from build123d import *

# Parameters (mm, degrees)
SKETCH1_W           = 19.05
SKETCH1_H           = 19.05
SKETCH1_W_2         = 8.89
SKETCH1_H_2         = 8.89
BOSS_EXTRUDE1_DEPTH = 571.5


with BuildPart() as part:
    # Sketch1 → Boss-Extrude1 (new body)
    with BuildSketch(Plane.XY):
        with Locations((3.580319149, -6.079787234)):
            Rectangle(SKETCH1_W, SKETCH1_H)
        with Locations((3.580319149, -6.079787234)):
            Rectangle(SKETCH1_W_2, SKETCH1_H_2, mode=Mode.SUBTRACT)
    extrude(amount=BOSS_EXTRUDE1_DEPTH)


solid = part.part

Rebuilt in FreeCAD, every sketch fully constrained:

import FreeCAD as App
import Part
import Sketcher

V = App.Vector
Q = App.Units.Quantity

doc = App.newDocument("Part")
params = doc.addObject("Spreadsheet::Sheet", "Params")
for row, (alias, value) in enumerate([
    ("sketch1_width", "0.75 in"),
    ("sketch1_width2", "0.35 in"),
    ("pad1_length", "22.5 in"),
], start=1):
    params.set(f"A{row}", alias)
    params.set(f"B{row}", "=" + value)
    params.setAlias(f"B{row}", alias)

body = doc.addObject("PartDesign::Body", "Body")

sketch1 = doc.addObject("Sketcher::SketchObject", "Sketch")
body.addObject(sketch1)
sketch1.AttachmentSupport = (doc.XY_Plane, [""])
sketch1.MapMode = "FlatFace"
sketch1.addGeometry([
    Part.LineSegment(V(-6, 3, 0), V(-6, -16, 0)),
    Part.LineSegment(V(-6, -16, 0), V(13, -16, 0)),
    Part.LineSegment(V(13, -16, 0), V(13, 3, 0)),
    Part.LineSegment(V(13, 3, 0), V(-6, 3, 0)),
    Part.LineSegment(V(8, -11, 0), V(-1, -11, 0)),
    Part.LineSegment(V(-1, -11, 0), V(-1, -2, 0)),
    Part.LineSegment(V(-1, -2, 0), V(8, -2, 0)),
    Part.LineSegment(V(8, -2, 0), V(8, -11, 0)),
], False)
sketch1.addConstraint([
    Sketcher.Constraint("Coincident", 0, 2, 1, 1),
    Sketcher.Constraint("Coincident", 1, 2, 2, 1),
    Sketcher.Constraint("Coincident", 2, 2, 3, 1),
    Sketcher.Constraint("Coincident", 3, 2, 0, 1),
    Sketcher.Constraint("Coincident", 4, 2, 5, 1),
    Sketcher.Constraint("Coincident", 5, 2, 6, 1),
    Sketcher.Constraint("Coincident", 6, 2, 7, 1),
    Sketcher.Constraint("Coincident", 7, 2, 4, 1),
    Sketcher.Constraint("Vertical", 0),
    Sketcher.Constraint("Horizontal", 1),
    Sketcher.Constraint("Vertical", 2),
    Sketcher.Constraint("Horizontal", 3),
    Sketcher.Constraint("Horizontal", 4),
    Sketcher.Constraint("Vertical", 5),
    Sketcher.Constraint("Horizontal", 6),
    Sketcher.Constraint("Vertical", 7),
    Sketcher.Constraint("Equal", 3, 0),
    Sketcher.Constraint("Equal", 6, 5),
    Sketcher.Constraint("DistanceX", 1, 1, 1, 2, Q("0.75 in")),
    Sketcher.Constraint("DistanceX", 4, 2, 4, 1, Q("0.35 in")),
    Sketcher.Constraint("DistanceX", 0, 2, 4, 2, Q("0.2 in")),
    Sketcher.Constraint("DistanceY", 0, 2, 4, 2, Q("0.2 in")),
    Sketcher.Constraint("DistanceX", 0, 2, -1, 1, 5.944681),
    Sketcher.Constraint("DistanceY", 0, 2, -1, 1, 15.604787),
])
sketch1.setExpression("Constraints[18]", "Params.sketch1_width")
sketch1.setExpression("Constraints[19]", "Params.sketch1_width2")
pad1 = doc.addObject("PartDesign::Pad", "Pad")
body.addObject(pad1)
pad1.Profile = sketch1
pad1.setExpression("Length", "Params.pad1_length")

doc.recompute()
